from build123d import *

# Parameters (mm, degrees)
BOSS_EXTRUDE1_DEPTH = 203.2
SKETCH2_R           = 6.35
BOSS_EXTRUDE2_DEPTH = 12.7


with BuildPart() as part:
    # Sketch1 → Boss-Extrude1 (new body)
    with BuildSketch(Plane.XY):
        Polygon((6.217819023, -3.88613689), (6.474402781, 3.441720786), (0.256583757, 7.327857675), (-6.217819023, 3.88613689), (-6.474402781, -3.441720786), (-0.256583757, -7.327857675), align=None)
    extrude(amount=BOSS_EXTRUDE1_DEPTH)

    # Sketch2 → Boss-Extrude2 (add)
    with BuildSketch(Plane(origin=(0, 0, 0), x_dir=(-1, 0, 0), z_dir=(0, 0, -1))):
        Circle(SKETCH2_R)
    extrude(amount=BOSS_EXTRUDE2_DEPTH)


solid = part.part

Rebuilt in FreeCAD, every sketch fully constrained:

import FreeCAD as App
import Part
import Sketcher
Q = App.Units.Quantity


def add_polygon(sketch, points):
    """Adds a closed chain of lines whose ends are joined by coincident constraints."""
    first, n = sketch.GeometryCount, len(points)
    for a, b in zip(points, points[1:] + points[:1]):
        sketch.addGeometry(Part.LineSegment(App.Vector(*a, 0), App.Vector(*b, 0)), False)
    for i in range(n):
        sketch.addConstraint(Sketcher.Constraint("Coincident", first + i, 2, first + (i + 1) % n, 1))

doc = App.newDocument("Part")
body = doc.addObject("PartDesign::Body", "Body")

# Sketch on XY plane
sketch1 = body.newObject("Sketcher::SketchObject", "Sketch")
sketch1.AttachmentSupport = (doc.getObject("XY_Plane"), [""])
sketch1.MapMode = "FlatFace"
add_polygon(sketch1, [(6, -4), (6, 3), (0, 7), (-6, 4), (-6, -3), (0, -7)])  # lines 0-5
sketch1.addConstraint([
    Sketcher.Constraint("Symmetric", 0, 2, 3, 2, -1, 1),
    Sketcher.Constraint("Symmetric", 1, 2, 4, 2, -1, 1),
    Sketcher.Constraint("Symmetric", 2, 2, 5, 2, -1, 1),
    Sketcher.Constraint("Equal", 0, 1),
    Sketcher.Constraint("Equal", 1, 2),
    Sketcher.Constraint("Distance", 0, 7.332348),
    Sketcher.Constraint("DistanceY", -1, 1, 0, 2, 3.441721),
    Sketcher.Constraint("DistanceX", 2, 2, -1, 1, 6.217819),
    Sketcher.Constraint("DistanceX", 1, 2, 0, 2, 6.217819),
])
pad1 = body.newObject("PartDesign::Pad", "Pad")
pad1.Profile = sketch1
pad1.Length = Q("8 in")

# Sketch on XY plane
sketch2 = body.newObject("Sketcher::SketchObject", "Sketch001")
sketch2.AttachmentSupport = (doc.getObject("XY_Plane"), [""])
sketch2.MapMode = "FlatFace"
sketch2.addGeometry(Part.Circle(App.Vector(0, 0, 0), App.Vector(0, 0, 1), 6), False)
sketch2.addConstraint([
    Sketcher.Constraint("Coincident", 0, 3, -1, 1),
    Sketcher.Constraint("Diameter", 0, Q("0.5 in")),
])
pad2 = body.newObject("PartDesign::Pad", "Pad001")
pad2.Profile = sketch2
pad2.Length = Q("0.5 in")
pad2.Reversed = True

doc.recompute()
